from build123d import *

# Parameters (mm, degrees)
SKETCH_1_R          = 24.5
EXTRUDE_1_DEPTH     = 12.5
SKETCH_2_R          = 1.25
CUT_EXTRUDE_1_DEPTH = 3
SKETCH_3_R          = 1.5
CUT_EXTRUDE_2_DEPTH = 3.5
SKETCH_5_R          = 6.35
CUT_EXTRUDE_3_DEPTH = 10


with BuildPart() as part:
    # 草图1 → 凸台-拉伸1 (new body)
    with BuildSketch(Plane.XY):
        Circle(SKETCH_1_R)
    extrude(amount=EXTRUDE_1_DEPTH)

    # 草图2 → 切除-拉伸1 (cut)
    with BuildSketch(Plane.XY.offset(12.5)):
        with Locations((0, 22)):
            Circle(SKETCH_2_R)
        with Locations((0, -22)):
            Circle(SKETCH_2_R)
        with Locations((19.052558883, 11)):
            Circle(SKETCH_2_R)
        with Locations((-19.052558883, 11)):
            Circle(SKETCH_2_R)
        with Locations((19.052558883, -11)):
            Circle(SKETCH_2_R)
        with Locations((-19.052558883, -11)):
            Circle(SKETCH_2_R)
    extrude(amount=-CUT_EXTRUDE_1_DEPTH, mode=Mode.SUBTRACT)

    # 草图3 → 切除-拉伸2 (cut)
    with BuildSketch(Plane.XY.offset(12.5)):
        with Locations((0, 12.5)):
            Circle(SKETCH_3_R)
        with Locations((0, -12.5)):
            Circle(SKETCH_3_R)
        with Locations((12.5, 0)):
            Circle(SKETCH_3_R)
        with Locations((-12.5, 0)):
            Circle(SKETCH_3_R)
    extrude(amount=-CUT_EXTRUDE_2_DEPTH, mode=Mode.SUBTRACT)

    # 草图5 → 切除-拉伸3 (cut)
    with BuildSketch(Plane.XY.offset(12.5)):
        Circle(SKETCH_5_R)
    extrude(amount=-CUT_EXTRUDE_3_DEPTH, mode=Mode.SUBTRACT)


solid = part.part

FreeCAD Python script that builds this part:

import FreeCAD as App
import Part
import Sketcher
from FreeCAD import Vector

doc = App.newDocument("Part")
params = doc.addObject("Spreadsheet::Sheet", "Params")
for row, (alias, value) in enumerate([
    ("sketch1_diameter", "49 mm"),
    ("pad1_length", "12.5 mm"),
    ("sketch2_diameter", "2.5 mm"),
    ("pocket1_length", "3 mm"),
    ("sketch3_diameter", "3 mm"),
    ("pocket2_length", "3.5 mm"),
    ("sketch4_diameter", "12.7 mm"),
    ("pocket3_length", "10 mm"),
], start=1):
    params.set(f"A{row}", alias)
    params.set(f"B{row}", "=" + value)
    params.setAlias(f"B{row}", alias)

body = doc.addObject("PartDesign::Body", "Body")

# Sketch on XY plane
sketch1 = body.newObject("Sketcher::SketchObject", "Sketch")
sketch1.AttachmentSupport = (doc.getObject("XY_Plane"), [""])
sketch1.MapMode = "FlatFace"
sketch1.addGeometry(Part.Circle(Vector(0, 0, 0), Vector(0, 0, 1), 24), False)
sketch1.addConstraint([
    Sketcher.Constraint("Coincident", 0, 3, -1, 1),
    Sketcher.Constraint("Diameter", 0, 49.0),
])
sketch1.setExpression("Constraints[1]", "Params.sketch1_diameter")
pad1 = body.newObject("PartDesign::Pad", "Pad")
pad1.Profile = sketch1
pad1.setExpression("Length", "Params.pad1_length")

# Sketch on XY plane
sketch2 = body.newObject("Sketcher::SketchObject", "Sketch001")
sketch2.AttachmentSupport = (doc.getObject("XY_Plane"), [""])
sketch2.MapMode = "FlatFace"
sketch2.AttachmentOffset = App.Placement(Vector(0, 0, 12.5), App.Rotation())
sketch2.addGeometry([
    Part.Circle(Vector(0, 22, 0), Vector(0, 0, 1), 1.2),  # 0
    Part.Circle(Vector(0, -22, 0), Vector(0, 0, 1), 1.2),  # 1
    Part.Circle(Vector(19.1, 11, 0), Vector(0, 0, 1), 1.2),  # 2
    Part.Circle(Vector(-19.1, 11, 0), Vector(0, 0, 1), 1.2),  # 3
    Part.Circle(Vector(19.1, -11, 0), Vector(0, 0, 1), 1.2),  # 4
    Part.Circle(Vector(-19.1, -11, 0), Vector(0, 0, 1), 1.2),  # 5
], False)
sketch2.addConstraint([
    Sketcher.Constraint("Equal", 0, 1),
    Sketcher.Constraint("Equal", 1, 2),
    Sketcher.Constraint("Equal", 2, 3),
    Sketcher.Constraint("Equal", 3, 4),
    Sketcher.Constraint("Equal", 4, 5),
    Sketcher.Constraint("Symmetric", 0, 3, 1, 3, -1, 1),
    Sketcher.Constraint("Symmetric", 3, 3, 4, 3, -1, 1),
    Sketcher.Constraint("Symmetric", 2, 3, 5, 3, -1, 1),
    Sketcher.Constraint("Symmetric", 2, 3, 3, 3, -2),
    Sketcher.Constraint("PointOnObject", 0, 3, -2),
    Sketcher.Constraint("Diameter", 0, 2.5),
    Sketcher.Constraint("DistanceY", -1, 1, 0, 3, 22.0),
    Sketcher.Constraint("DistanceY", -1, 1, 2, 3, 11.0),
    Sketcher.Constraint("DistanceX", -1, 1, 2, 3, 19.052559),
])
sketch2.setExpression("Constraints[10]", "Params.sketch2_diameter")
pocket1 = body.newObject("PartDesign::Pocket", "Pocket")
pocket1.Profile = sketch2
pocket1.setExpression("Length", "Params.pocket1_length")

# Sketch on XY plane
sketch3 = body.newObject("Sketcher::SketchObject", "Sketch002")
sketch3.AttachmentSupport = (doc.getObject("XY_Plane"), [""])
sketch3.MapMode = "FlatFace"
sketch3.AttachmentOffset = App.Placement(Vector(0, 0, 12.5), App.Rotation())
sketch3.addGeometry([
    Part.Circle(Vector(0, 12.5, 0), Vector(0, 0, 1), 1.5),
    Part.Circle(Vector(0, -12.5, 0), Vector(0, 0, 1), 1.5),
    Part.Circle(Vector(12.5, 0, 0), Vector(0, 0, 1), 1.5),
    Part.Circle(Vector(-12.5, 0, 0), Vector(0, 0, 1), 1.5),
], False)
sketch3.addConstraint([
    Sketcher.Constraint("Equal", 0, 1),
    Sketcher.Constraint("Equal", 1, 2),
    Sketcher.Constraint("Equal", 2, 3),
    Sketcher.Constraint("Symmetric", 0, 3, 1, 3, -1, 1),
    Sketcher.Constraint("Symmetric", 2, 3, 3, 3, -1, 1),
    Sketcher.Constraint("PointOnObject", 0, 3, -2),
    Sketcher.Constraint("PointOnObject", 2, 3, -1),
    Sketcher.Constraint("Diameter", 0, 3.0),
    Sketcher.Constraint("DistanceY", 1, 3, 0, 3, 25.0),
    Sketcher.Constraint("DistanceX", 3, 3, 2, 3, 25.0),
])
sketch3.setExpression("Constraints[7]", "Params.sketch3_diameter")
pocket2 = body.newObject("PartDesign::Pocket", "Pocket001")
pocket2.Profile = sketch3
pocket2.setExpression("Length", "Params.pocket2_length")

# Sketch on XY plane
sketch4 = body.newObject("Sketcher::SketchObject", "Sketch003")
sketch4.AttachmentSupport = (doc.getObject("XY_Plane"), [""])
sketch4.MapMode = "FlatFace"
sketch4.AttachmentOffset = App.Placement(Vector(0, 0, 12.5), App.Rotation())
sketch4.addGeometry(Part.Circle(Vector(0, 0, 0), Vector(0, 0, 1), 6), False)
sketch4.addConstraint([
    Sketcher.Constraint("Coincident", 0, 3, -1, 1),
    Sketcher.Constraint("Diameter", 0, 12.7),
])
sketch4.setExpression("Constraints[1]", "Params.sketch4_diameter")
pocket3 = body.newObject("PartDesign::Pocket", "Pocket002")
pocket3.Profile = sketch4
pocket3.setExpression("Length", "Params.pocket3_length")

doc.recompute()
